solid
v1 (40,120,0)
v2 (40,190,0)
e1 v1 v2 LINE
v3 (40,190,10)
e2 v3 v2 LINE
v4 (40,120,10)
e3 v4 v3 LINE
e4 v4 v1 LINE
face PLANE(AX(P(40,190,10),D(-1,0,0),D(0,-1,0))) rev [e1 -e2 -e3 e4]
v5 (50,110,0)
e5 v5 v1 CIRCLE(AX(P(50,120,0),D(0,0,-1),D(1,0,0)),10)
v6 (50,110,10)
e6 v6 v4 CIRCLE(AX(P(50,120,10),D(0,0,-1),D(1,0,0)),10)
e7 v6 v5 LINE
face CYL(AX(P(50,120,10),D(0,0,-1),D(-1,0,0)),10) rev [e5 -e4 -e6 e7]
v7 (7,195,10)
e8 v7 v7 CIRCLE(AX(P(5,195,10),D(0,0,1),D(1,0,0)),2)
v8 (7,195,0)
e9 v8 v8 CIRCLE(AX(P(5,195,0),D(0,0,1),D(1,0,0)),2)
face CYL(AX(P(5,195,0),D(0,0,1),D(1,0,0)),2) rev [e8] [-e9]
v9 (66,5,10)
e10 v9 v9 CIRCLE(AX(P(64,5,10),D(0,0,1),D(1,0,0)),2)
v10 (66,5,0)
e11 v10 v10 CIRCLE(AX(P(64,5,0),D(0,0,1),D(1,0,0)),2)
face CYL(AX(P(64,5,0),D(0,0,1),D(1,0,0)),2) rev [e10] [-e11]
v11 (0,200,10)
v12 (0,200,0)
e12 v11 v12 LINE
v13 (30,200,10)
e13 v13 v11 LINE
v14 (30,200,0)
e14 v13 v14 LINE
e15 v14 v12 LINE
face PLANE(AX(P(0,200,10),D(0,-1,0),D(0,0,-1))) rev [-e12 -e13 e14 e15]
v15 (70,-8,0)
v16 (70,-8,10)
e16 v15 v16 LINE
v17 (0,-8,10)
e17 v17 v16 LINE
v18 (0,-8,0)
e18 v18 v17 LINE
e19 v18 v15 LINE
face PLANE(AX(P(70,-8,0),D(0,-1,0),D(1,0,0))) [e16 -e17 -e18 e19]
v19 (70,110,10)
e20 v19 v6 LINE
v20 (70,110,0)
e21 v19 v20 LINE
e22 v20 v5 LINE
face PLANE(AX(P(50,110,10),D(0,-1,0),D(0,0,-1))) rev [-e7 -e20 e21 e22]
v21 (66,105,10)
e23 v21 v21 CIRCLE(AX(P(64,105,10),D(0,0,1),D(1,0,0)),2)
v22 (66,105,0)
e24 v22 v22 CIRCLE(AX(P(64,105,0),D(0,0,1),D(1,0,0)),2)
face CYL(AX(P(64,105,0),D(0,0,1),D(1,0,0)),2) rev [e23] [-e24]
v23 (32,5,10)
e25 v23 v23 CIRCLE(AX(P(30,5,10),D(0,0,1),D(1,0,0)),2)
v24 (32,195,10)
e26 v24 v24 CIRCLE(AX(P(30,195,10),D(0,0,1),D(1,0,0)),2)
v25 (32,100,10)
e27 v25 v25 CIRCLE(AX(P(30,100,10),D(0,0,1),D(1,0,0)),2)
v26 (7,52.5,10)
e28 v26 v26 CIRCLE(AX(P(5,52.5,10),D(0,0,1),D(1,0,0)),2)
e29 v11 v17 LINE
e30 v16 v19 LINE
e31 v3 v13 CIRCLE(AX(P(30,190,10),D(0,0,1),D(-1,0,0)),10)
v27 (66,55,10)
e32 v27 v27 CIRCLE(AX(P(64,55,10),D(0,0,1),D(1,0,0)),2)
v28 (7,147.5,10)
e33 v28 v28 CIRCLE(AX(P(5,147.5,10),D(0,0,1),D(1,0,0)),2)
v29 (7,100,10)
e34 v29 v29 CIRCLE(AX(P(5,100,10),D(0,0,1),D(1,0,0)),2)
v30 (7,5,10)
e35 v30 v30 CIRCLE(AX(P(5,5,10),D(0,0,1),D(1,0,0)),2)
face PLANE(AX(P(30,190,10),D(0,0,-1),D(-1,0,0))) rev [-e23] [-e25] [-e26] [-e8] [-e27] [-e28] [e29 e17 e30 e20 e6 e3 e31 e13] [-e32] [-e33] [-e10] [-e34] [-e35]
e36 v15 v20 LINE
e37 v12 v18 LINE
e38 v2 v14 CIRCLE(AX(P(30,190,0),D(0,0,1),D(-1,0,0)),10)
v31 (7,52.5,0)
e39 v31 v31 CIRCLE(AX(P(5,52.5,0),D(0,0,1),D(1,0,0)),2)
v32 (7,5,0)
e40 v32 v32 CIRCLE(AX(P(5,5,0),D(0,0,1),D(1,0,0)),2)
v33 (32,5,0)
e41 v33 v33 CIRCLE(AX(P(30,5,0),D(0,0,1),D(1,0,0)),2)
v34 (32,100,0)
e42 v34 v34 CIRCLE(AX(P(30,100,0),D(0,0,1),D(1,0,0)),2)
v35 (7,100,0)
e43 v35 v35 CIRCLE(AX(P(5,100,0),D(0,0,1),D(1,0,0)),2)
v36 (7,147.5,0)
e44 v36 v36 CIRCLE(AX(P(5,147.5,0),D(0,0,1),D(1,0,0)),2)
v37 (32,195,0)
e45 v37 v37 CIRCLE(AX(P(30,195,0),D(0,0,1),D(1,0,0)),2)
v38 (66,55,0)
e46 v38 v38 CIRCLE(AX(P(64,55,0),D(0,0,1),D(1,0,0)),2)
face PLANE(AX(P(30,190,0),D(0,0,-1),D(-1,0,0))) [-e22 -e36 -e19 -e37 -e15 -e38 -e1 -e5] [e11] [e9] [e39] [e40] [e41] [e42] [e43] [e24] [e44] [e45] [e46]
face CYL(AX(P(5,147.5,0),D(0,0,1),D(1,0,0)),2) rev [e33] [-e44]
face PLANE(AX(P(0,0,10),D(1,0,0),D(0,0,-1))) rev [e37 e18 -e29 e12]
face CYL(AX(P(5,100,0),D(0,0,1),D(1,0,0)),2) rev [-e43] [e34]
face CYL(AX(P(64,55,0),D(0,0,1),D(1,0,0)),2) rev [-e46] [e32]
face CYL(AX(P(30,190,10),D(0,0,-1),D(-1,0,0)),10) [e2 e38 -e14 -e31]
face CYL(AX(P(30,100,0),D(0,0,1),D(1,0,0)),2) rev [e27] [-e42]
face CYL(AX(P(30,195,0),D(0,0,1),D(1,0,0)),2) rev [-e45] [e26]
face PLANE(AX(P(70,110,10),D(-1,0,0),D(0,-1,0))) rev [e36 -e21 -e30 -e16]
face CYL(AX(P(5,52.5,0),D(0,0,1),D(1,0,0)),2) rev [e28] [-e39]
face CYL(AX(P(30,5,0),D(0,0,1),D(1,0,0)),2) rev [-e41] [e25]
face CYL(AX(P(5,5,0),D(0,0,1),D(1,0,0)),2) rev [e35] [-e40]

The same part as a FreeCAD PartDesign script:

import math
import FreeCAD as App
import Part
import Sketcher
from FreeCAD import Vector


def add_polygon(sketch, points):
    """Adds a closed chain of lines whose ends are joined by coincident constraints."""
    first, n = sketch.GeometryCount, len(points)
    for a, b in zip(points, points[1:] + points[:1]):
        sketch.addGeometry(Part.LineSegment(App.Vector(*a, 0), App.Vector(*b, 0)), False)
    for i in range(n):
        sketch.addConstraint(Sketcher.Constraint("Coincident", first + i, 2, first + (i + 1) % n, 1))

doc = App.newDocument("Part")
body = doc.addObject("PartDesign::Body", "Body")

sketch1 = doc.addObject("Sketcher::SketchObject", "Sketch")
body.addObject(sketch1)
sketch1.AttachmentSupport = (doc.XY_Plane, [""])
sketch1.MapMode = "FlatFace"
sketch1.addGeometry([
    Part.LineSegment(Vector(0, 200, 0), Vector(0, 0, 0)),
    Part.LineSegment(Vector(0, 0, 0), Vector(70, 0, 0)),
    Part.LineSegment(Vector(70, 0, 0), Vector(70, 110, 0)),
    Part.LineSegment(Vector(70, 110, 0), Vector(50, 110, 0)),
    Part.ArcOfCircle(Part.Circle(Vector(50, 120, 0), Vector(0, 0, 1), 10), math.radians(180), math.radians(270)),
    Part.LineSegment(Vector(40, 120, 0), Vector(40, 190, 0)),
    Part.ArcOfCircle(Part.Circle(Vector(30, 190, 0), Vector(0, 0, 1), 10), math.radians(0), math.radians(90)),
    Part.LineSegment(Vector(30, 200, 0), Vector(0, 200, 0)),
], False)
sketch1.addConstraint([
    Sketcher.Constraint("Coincident", 0, 2, 1, 1),
    Sketcher.Constraint("Coincident", 1, 2, 2, 1),
    Sketcher.Constraint("Coincident", 2, 2, 3, 1),
    Sketcher.Constraint("Tangent", 3, 2, 4, 2),
    Sketcher.Constraint("Tangent", 4, 1, 5, 1),
    Sketcher.Constraint("Tangent", 5, 2, 6, 1),
    Sketcher.Constraint("Tangent", 6, 2, 7, 1),
    Sketcher.Constraint("Coincident", 7, 2, 0, 1),
    Sketcher.Constraint("Vertical", 0),
    Sketcher.Constraint("Horizontal", 1),
    Sketcher.Constraint("Vertical", 2),
    Sketcher.Constraint("Horizontal", 3),
    Sketcher.Constraint("Vertical", 5),
    Sketcher.Constraint("Horizontal", 7),
    Sketcher.Constraint("Coincident", 0, 2, -1, 1),
    Sketcher.Constraint("Equal", 4, 6),
    Sketcher.Constraint("Equal", 1, 5),
    Sketcher.Constraint("Radius", 4, 10.0),
    Sketcher.Constraint("DistanceX", 1, 1, 1, 2, 70.0),
    Sketcher.Constraint("DistanceX", 3, 2, 3, 1, 20.0),
    Sketcher.Constraint("DistanceY", 0, 2, 0, 1, 200.0),
])
pad1 = doc.addObject("PartDesign::Pad", "Pad")
body.addObject(pad1)
pad1.Profile = sketch1
pad1.Length = 10

sketch2 = doc.addObject("Sketcher::SketchObject", "Sketch001")
body.addObject(sketch2)
sketch2.AttachmentSupport = (doc.XY_Plane, [""])
sketch2.MapMode = "FlatFace"
sketch2.AttachmentOffset = App.Placement(Vector(0, 0, 10), App.Rotation())
sketch2.addGeometry([
    Part.Circle(Vector(5, 195, 0), Vector(0, 0, 1), 2),
    Part.Circle(Vector(5, 147.5, 0), Vector(0, 0, 1), 2),
    Part.Circle(Vector(5, 100, 0), Vector(0, 0, 1), 2),
    Part.Circle(Vector(5, 52.5, 0), Vector(0, 0, 1), 2),
    Part.Circle(Vector(5, 5, 0), Vector(0, 0, 1), 2),
    Part.Circle(Vector(64, 105, 0), Vector(0, 0, 1), 2),
    Part.Circle(Vector(64, 55, 0), Vector(0, 0, 1), 2),
    Part.Circle(Vector(64, 5, 0), Vector(0, 0, 1), 2),
    Part.Circle(Vector(30, 195, 0), Vector(0, 0, 1), 2),
    Part.Circle(Vector(30, 100, 0), Vector(0, 0, 1), 2),
    Part.Circle(Vector(30, 5, 0), Vector(0, 0, 1), 2),
], False)
sketch2.addConstraint([
    Sketcher.Constraint("Equal", 0, 1),
    Sketcher.Constraint("Equal", 1, 2),
    Sketcher.Constraint("Equal", 2, 3),
    Sketcher.Constraint("Equal", 3, 4),
    Sketcher.Constraint("Equal", 4, 5),
    Sketcher.Constraint("Equal", 5, 6),
    Sketcher.Constraint("Equal", 6, 7),
    Sketcher.Constraint("Equal", 7, 8),
    Sketcher.Constraint("Equal", 8, 9),
    Sketcher.Constraint("Equal", 9, 10),
    Sketcher.Constraint("Horizontal", 4, 3, 7, 3),
    Sketcher.Constraint("Horizontal", 0, 3, 8, 3),
    Sketcher.Constraint("Horizontal", 2, 3, 9, 3),
    Sketcher.Constraint("Horizontal", 7, 3, 10, 3),
    Sketcher.Constraint("Vertical", 0, 3, 1, 3),
    Sketcher.Constraint("Vertical", 1, 3, 2, 3),
    Sketcher.Constraint("Vertical", 2, 3, 3, 3),
    Sketcher.Constraint("Vertical", 3, 3, 4, 3),
    Sketcher.Constraint("Vertical", 5, 3, 6, 3),
    Sketcher.Constraint("Vertical", 6, 3, 7, 3),
    Sketcher.Constraint("Vertical", 8, 3, 9, 3),
    Sketcher.Constraint("Vertical", 9, 3, 10, 3),
    Sketcher.Constraint("Diameter", 0, 4.0),
    Sketcher.Constraint("DistanceX", -1, 1, 0, 3, 5.0),
    Sketcher.Constraint("DistanceY", -1, 1, 0, 3, 195.0),
    Sketcher.Constraint("DistanceY", -1, 1, 2, 3, 100.0),
    Sketcher.Constraint("DistanceY", -1, 1, 4, 3, 5.0),
    Sketcher.Constraint("DistanceX", -1, 1, 5, 3, 64.0),
    Sketcher.Constraint("DistanceY", -1, 1, 5, 3, 105.0),
    Sketcher.Constraint("DistanceY", -1, 1, 6, 3, 55.0),
    Sketcher.Constraint("DistanceX", -1, 1, 8, 3, 30.0),
    Sketcher.Constraint("DistanceY", 3, 3, 1, 3, 95.0),
    Sketcher.Constraint("DistanceY", -1, 1, 1, 3, 147.5),
])
pocket1 = doc.addObject("PartDesign::Pocket", "Pocket")
body.addObject(pocket1)
pocket1.Profile = sketch2
pocket1.Type = "ThroughAll"

sketch3 = doc.addObject("Sketcher::SketchObject", "Sketch002")
body.addObject(sketch3)
sketch3.AttachmentSupport = (doc.XY_Plane, [""])
sketch3.MapMode = "FlatFace"
sketch3.AttachmentOffset = App.Placement(Vector(0, 0, 10), App.Rotation())
add_polygon(sketch3, [(0, 0), (0, -8), (70, -8), (70, 0)])
sketch3.addConstraint([
    Sketcher.Constraint("Vertical", 0),
    Sketcher.Constraint("Horizontal", 1),
    Sketcher.Constraint("Vertical", 2),
    Sketcher.Constraint("Horizontal", 3),
    Sketcher.Constraint("Coincident", 3, 2, -1, 1),
    Sketcher.Constraint("DistanceX", 1, 1, 1, 2, 70.0),
    Sketcher.Constraint("DistanceY", 0, 2, 0, 1, 8.0),
])
pad2 = doc.addObject("PartDesign::Pad", "Pad001")
body.addObject(pad2)
pad2.Profile = sketch3
pad2.Length = 10
pad2.Reversed = True

doc.recompute()
